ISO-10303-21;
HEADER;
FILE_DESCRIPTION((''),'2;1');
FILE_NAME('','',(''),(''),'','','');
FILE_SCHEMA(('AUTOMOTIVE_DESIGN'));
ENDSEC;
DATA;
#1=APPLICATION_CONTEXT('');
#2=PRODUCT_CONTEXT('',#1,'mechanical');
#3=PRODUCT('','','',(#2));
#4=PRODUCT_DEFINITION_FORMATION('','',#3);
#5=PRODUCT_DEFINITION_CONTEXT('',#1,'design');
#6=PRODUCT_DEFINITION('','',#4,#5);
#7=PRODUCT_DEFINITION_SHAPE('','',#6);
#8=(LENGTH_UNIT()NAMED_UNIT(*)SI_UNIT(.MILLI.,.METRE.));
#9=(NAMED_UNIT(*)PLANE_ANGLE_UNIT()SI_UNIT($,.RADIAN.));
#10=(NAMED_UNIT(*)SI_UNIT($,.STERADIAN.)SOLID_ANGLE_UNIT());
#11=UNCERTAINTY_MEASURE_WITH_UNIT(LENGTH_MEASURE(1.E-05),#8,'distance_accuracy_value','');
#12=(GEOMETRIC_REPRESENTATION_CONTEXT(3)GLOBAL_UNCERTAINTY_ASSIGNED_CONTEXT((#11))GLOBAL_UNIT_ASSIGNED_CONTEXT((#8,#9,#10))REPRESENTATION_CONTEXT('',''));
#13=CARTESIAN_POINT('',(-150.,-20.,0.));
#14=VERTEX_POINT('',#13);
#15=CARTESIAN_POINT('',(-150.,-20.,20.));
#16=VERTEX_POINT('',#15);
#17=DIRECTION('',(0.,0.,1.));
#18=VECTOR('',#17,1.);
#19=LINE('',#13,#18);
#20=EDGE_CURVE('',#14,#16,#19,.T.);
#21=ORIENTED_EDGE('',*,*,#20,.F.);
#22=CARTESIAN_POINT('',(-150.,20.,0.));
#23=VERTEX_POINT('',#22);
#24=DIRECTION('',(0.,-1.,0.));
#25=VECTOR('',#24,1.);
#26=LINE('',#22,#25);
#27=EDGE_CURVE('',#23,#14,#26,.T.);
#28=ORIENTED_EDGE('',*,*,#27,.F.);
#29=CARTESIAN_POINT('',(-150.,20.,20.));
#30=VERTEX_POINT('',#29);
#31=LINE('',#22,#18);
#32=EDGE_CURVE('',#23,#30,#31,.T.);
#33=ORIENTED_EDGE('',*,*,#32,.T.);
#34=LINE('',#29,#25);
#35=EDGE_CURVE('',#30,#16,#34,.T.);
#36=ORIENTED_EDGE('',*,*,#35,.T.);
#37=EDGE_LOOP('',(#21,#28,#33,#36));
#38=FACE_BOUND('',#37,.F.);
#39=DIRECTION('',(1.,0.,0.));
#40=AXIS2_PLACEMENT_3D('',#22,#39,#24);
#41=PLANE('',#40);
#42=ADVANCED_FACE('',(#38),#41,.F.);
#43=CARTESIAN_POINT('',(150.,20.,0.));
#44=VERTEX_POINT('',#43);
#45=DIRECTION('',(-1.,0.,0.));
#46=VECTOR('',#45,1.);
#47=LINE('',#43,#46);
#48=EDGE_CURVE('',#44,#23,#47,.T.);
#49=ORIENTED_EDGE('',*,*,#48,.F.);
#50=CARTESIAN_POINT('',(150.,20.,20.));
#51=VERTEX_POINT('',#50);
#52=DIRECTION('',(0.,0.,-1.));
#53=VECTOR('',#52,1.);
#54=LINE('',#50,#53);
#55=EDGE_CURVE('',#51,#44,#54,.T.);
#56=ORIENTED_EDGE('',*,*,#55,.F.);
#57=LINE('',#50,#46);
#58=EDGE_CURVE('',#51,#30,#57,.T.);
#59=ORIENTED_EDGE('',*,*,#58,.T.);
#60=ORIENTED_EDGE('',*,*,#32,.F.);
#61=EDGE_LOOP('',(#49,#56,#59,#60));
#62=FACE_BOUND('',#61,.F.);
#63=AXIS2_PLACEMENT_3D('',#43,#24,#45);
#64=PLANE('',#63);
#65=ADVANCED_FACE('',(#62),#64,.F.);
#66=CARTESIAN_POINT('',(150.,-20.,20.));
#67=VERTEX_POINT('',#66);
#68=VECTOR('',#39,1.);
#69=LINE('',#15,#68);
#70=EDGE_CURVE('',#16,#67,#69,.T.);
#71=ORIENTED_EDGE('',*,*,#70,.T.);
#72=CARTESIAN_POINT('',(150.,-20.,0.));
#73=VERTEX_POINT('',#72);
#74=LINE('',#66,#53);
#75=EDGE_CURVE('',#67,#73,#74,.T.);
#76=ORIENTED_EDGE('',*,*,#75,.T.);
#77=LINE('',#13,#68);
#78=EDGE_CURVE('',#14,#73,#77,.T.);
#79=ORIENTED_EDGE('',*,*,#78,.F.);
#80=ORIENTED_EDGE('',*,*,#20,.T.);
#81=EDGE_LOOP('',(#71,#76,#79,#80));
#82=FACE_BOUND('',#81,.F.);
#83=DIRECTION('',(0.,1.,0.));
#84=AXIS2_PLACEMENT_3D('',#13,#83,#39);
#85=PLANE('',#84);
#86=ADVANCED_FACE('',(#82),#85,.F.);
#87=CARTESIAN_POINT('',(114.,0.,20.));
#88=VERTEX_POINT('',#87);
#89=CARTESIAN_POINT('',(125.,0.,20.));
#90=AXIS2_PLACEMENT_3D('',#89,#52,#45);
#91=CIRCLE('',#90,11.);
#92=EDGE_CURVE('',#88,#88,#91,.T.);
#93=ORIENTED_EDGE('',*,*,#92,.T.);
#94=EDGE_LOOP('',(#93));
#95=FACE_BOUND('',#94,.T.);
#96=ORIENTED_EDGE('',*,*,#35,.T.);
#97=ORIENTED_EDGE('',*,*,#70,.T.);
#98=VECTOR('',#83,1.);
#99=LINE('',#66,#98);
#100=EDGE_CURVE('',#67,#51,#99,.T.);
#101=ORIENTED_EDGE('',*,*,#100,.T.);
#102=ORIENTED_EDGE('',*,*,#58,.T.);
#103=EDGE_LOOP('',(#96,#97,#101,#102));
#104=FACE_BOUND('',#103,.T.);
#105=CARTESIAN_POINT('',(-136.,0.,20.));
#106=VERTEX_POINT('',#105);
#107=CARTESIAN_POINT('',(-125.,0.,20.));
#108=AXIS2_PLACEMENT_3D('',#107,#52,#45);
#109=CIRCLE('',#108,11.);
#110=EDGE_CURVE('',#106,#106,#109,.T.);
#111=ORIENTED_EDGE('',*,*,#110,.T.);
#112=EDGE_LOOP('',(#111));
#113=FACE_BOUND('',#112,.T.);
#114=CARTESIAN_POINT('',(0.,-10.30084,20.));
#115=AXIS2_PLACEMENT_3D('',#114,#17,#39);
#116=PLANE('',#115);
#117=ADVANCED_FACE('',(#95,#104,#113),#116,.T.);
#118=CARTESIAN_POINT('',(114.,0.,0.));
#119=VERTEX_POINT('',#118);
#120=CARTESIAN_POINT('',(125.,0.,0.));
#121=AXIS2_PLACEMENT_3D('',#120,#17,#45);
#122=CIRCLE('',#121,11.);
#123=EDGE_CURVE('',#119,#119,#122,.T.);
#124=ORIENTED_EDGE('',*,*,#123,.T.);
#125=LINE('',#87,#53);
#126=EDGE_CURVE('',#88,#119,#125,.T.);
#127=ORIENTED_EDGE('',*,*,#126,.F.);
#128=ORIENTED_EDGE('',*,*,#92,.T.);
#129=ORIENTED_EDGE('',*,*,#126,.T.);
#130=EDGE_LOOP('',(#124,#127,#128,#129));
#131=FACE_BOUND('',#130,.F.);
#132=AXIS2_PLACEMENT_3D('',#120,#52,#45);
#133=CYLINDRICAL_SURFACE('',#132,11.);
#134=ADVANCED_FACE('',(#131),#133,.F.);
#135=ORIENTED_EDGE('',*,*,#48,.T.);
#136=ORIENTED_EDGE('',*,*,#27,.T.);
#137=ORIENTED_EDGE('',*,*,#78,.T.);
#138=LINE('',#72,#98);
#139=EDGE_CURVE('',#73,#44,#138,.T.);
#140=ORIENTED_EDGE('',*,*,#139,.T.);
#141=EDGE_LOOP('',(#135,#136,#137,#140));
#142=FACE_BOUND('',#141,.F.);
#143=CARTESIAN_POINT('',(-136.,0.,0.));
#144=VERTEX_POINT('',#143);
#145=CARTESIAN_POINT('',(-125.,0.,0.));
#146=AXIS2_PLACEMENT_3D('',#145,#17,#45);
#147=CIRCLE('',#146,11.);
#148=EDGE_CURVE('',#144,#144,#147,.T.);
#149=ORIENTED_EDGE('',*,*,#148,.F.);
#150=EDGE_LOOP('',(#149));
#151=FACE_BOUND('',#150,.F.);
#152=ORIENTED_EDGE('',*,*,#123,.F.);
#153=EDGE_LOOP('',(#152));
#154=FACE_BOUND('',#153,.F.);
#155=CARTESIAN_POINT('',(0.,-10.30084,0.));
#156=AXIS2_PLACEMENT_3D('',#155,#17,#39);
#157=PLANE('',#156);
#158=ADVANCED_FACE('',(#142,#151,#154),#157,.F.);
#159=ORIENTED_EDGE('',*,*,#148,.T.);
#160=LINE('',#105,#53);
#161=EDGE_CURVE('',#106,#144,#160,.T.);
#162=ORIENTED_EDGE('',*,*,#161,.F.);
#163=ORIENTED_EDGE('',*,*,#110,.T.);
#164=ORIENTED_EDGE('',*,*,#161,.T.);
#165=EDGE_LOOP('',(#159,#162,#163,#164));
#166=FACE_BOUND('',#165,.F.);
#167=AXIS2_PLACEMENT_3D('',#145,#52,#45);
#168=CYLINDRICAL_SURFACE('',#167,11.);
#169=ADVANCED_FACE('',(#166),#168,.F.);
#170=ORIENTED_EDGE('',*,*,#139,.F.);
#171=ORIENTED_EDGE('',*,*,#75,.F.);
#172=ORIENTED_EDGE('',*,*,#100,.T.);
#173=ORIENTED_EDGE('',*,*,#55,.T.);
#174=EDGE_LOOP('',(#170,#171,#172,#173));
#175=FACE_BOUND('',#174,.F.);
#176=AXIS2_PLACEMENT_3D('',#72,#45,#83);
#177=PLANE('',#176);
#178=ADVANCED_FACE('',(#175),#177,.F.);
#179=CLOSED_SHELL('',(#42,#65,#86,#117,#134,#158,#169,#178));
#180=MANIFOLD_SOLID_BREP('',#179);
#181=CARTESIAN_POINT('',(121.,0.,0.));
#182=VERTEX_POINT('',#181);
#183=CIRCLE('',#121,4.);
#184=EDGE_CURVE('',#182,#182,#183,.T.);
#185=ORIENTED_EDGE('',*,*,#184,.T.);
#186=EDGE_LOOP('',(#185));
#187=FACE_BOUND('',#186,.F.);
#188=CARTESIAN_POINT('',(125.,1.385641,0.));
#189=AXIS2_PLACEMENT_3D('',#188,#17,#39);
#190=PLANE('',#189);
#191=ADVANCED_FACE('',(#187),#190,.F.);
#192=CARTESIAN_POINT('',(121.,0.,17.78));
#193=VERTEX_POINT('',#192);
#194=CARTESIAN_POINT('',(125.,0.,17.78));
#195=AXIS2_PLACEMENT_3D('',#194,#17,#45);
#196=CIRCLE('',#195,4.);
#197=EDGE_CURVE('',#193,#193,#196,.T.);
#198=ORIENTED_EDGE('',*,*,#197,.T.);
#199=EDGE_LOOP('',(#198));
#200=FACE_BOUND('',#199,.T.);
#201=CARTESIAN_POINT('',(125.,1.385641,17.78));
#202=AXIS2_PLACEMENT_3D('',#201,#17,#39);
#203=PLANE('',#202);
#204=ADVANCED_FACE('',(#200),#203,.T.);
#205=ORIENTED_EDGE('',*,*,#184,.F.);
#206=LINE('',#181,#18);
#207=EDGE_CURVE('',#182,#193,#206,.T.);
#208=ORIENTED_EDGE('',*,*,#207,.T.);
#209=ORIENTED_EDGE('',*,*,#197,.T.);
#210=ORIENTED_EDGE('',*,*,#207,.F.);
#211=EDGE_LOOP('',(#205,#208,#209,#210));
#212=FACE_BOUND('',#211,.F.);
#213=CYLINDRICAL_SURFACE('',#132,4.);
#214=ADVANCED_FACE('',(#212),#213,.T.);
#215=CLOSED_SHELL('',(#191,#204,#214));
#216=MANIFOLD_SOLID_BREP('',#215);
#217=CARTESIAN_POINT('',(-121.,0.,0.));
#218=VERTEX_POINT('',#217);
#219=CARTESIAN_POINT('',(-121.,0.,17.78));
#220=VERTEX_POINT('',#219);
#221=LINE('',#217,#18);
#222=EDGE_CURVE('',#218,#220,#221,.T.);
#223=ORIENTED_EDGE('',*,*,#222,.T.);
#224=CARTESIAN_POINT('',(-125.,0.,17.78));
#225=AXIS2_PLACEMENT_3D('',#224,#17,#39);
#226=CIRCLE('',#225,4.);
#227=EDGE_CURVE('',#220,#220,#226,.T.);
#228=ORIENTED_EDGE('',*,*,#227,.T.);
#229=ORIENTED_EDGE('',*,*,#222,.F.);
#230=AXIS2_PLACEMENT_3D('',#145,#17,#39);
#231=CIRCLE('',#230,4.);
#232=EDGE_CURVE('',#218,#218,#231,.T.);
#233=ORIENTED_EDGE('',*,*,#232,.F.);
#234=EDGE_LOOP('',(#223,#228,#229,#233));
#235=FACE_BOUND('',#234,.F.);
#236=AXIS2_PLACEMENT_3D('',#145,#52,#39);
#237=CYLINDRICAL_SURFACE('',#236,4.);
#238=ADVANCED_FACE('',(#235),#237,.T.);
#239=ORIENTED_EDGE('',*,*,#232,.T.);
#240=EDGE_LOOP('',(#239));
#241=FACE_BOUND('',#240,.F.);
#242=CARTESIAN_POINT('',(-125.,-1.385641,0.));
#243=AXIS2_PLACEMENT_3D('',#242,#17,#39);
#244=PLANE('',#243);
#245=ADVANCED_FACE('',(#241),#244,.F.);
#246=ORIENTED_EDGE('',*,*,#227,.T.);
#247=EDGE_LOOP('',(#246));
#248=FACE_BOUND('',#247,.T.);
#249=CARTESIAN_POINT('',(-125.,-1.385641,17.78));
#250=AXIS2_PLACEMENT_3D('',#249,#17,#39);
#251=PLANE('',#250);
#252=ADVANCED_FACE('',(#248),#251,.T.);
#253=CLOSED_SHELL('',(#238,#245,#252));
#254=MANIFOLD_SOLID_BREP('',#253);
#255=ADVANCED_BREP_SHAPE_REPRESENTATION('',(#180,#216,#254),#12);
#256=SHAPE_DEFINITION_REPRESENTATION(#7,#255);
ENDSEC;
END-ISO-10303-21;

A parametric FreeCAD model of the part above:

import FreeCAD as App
import Part
import Sketcher

V = App.Vector
Q = App.Units.Quantity


def add_polygon(sketch, points):
    """Adds a closed chain of lines whose ends are joined by coincident constraints."""
    first, n = sketch.GeometryCount, len(points)
    for a, b in zip(points, points[1:] + points[:1]):
        sketch.addGeometry(Part.LineSegment(App.Vector(*a, 0), App.Vector(*b, 0)), False)
    for i in range(n):
        sketch.addConstraint(Sketcher.Constraint("Coincident", first + i, 2, first + (i + 1) % n, 1))

doc = App.newDocument("Part")
body = doc.addObject("PartDesign::Body", "Body")

# Sketch on XY plane
sketch1 = body.newObject("Sketcher::SketchObject", "Sketch")
sketch1.AttachmentSupport = (doc.getObject("XY_Plane"), [""])
sketch1.MapMode = "FlatFace"
add_polygon(sketch1, [(150, -20), (150, 20), (-150, 20), (-150, -20)])  # lines 0-3
sketch1.addGeometry(Part.Circle(V(125, 0, 0), V(0, 0, 1), 11), False)  # 4
sketch1.addGeometry(Part.Circle(V(-125, 0, 0), V(0, 0, 1), 11), False)  # 5
sketch1.addConstraint([
    Sketcher.Constraint("Vertical", 0),
    Sketcher.Constraint("Horizontal", 1),
    Sketcher.Constraint("Vertical", 2),
    Sketcher.Constraint("Horizontal", 3),
    Sketcher.Constraint("Equal", 4, 5),
    Sketcher.Constraint("Symmetric", 4, 3, 5, 3, -1, 1),
    Sketcher.Constraint("Symmetric", 0, 2, 2, 2, -1, 1),
    Sketcher.Constraint("PointOnObject", 4, 3, -1),
    Sketcher.Constraint("Diameter", 4, Q("22 mm")),
    Sketcher.Constraint("DistanceX", 1, 2, 1, 1, Q("300 mm")),
    Sketcher.Constraint("DistanceY", 0, 1, 0, 2, Q("40 mm")),
    Sketcher.Constraint("DistanceX", -1, 1, 4, 3, Q("125 mm")),
])
pad1 = body.newObject("PartDesign::Pad", "Pad")
pad1.Profile = sketch1
pad1.Length = 20

# Sketch on XY plane
sketch2 = body.newObject("Sketcher::SketchObject", "Sketch001")
sketch2.AttachmentSupport = (doc.getObject("XY_Plane"), [""])
sketch2.MapMode = "FlatFace"
add_polygon(sketch2, [(150, 20), (-150, 20), (-150, -20), (150, -20)])  # lines 0-3
sketch2.addGeometry(Part.Circle(V(-125, 0, 0), V(0, 0, 1), 11), False)  # 4
sketch2.addGeometry(Part.Circle(V(125, 0, 0), V(0, 0, 1), 11), False)  # 5
sketch2.addConstraint([
    Sketcher.Constraint("Horizontal", 0),
    Sketcher.Constraint("Vertical", 1),
    Sketcher.Constraint("Horizontal", 2),
    Sketcher.Constraint("Vertical", 3),
    Sketcher.Constraint("Equal", 4, 5),
    Sketcher.Constraint("Symmetric", 4, 3, 5, 3, -1, 1),
    Sketcher.Constraint("Symmetric", 0, 2, 2, 2, -1, 1),
    Sketcher.Constraint("PointOnObject", 4, 3, -1),
    Sketcher.Constraint("Diameter", 4, Q("22 mm")),
    Sketcher.Constraint("DistanceX", 0, 2, 0, 1, Q("300 mm")),
    Sketcher.Constraint("DistanceY", 1, 2, 1, 1, Q("40 mm")),
    Sketcher.Constraint("DistanceX", 4, 3, -1, 1, Q("125 mm")),
])
pad2 = body.newObject("PartDesign::Pad", "Pad001")
pad2.Profile = sketch2
pad2.Length = 17.78
body2 = doc.addObject("PartDesign::Body", "Body001")

# Sketch on XY plane
sketch3 = body2.newObject("Sketcher::SketchObject", "Sketch002")
sketch3.AttachmentSupport = (doc.getObject("XY_Plane001"), [""])
sketch3.MapMode = "FlatFace"
sketch3.addGeometry(Part.Circle(V(-125, 0, 0), V(0, 0, 1), 4), False)
sketch3.addConstraint([
    Sketcher.Constraint("PointOnObject", 0, 3, -1),
    Sketcher.Constraint("Diameter", 0, Q("8 mm")),
    Sketcher.Constraint("DistanceX", 0, 3, -1, 1, Q("125 mm")),
])
pad3 = body2.newObject("PartDesign::Pad", "Pad002")
pad3.Profile = sketch3
pad3.Length = 17.78
body3 = doc.addObject("PartDesign::Body", "Body002")

# Sketch on XY plane
sketch4 = body3.newObject("Sketcher::SketchObject", "Sketch003")
sketch4.AttachmentSupport = (doc.getObject("XY_Plane002"), [""])
sketch4.MapMode = "FlatFace"
sketch4.addGeometry(Part.Circle(V(125, 0, 0), V(0, 0, 1), 4), False)
sketch4.addConstraint([
    Sketcher.Constraint("PointOnObject", 0, 3, -1),
    Sketcher.Constraint("Diameter", 0, Q("8 mm")),
    Sketcher.Constraint("DistanceX", -1, 1, 0, 3, Q("125 mm")),
])
pad4 = body3.newObject("PartDesign::Pad", "Pad003")
pad4.Profile = sketch4
pad4.Length = 17.78

doc.recompute()
